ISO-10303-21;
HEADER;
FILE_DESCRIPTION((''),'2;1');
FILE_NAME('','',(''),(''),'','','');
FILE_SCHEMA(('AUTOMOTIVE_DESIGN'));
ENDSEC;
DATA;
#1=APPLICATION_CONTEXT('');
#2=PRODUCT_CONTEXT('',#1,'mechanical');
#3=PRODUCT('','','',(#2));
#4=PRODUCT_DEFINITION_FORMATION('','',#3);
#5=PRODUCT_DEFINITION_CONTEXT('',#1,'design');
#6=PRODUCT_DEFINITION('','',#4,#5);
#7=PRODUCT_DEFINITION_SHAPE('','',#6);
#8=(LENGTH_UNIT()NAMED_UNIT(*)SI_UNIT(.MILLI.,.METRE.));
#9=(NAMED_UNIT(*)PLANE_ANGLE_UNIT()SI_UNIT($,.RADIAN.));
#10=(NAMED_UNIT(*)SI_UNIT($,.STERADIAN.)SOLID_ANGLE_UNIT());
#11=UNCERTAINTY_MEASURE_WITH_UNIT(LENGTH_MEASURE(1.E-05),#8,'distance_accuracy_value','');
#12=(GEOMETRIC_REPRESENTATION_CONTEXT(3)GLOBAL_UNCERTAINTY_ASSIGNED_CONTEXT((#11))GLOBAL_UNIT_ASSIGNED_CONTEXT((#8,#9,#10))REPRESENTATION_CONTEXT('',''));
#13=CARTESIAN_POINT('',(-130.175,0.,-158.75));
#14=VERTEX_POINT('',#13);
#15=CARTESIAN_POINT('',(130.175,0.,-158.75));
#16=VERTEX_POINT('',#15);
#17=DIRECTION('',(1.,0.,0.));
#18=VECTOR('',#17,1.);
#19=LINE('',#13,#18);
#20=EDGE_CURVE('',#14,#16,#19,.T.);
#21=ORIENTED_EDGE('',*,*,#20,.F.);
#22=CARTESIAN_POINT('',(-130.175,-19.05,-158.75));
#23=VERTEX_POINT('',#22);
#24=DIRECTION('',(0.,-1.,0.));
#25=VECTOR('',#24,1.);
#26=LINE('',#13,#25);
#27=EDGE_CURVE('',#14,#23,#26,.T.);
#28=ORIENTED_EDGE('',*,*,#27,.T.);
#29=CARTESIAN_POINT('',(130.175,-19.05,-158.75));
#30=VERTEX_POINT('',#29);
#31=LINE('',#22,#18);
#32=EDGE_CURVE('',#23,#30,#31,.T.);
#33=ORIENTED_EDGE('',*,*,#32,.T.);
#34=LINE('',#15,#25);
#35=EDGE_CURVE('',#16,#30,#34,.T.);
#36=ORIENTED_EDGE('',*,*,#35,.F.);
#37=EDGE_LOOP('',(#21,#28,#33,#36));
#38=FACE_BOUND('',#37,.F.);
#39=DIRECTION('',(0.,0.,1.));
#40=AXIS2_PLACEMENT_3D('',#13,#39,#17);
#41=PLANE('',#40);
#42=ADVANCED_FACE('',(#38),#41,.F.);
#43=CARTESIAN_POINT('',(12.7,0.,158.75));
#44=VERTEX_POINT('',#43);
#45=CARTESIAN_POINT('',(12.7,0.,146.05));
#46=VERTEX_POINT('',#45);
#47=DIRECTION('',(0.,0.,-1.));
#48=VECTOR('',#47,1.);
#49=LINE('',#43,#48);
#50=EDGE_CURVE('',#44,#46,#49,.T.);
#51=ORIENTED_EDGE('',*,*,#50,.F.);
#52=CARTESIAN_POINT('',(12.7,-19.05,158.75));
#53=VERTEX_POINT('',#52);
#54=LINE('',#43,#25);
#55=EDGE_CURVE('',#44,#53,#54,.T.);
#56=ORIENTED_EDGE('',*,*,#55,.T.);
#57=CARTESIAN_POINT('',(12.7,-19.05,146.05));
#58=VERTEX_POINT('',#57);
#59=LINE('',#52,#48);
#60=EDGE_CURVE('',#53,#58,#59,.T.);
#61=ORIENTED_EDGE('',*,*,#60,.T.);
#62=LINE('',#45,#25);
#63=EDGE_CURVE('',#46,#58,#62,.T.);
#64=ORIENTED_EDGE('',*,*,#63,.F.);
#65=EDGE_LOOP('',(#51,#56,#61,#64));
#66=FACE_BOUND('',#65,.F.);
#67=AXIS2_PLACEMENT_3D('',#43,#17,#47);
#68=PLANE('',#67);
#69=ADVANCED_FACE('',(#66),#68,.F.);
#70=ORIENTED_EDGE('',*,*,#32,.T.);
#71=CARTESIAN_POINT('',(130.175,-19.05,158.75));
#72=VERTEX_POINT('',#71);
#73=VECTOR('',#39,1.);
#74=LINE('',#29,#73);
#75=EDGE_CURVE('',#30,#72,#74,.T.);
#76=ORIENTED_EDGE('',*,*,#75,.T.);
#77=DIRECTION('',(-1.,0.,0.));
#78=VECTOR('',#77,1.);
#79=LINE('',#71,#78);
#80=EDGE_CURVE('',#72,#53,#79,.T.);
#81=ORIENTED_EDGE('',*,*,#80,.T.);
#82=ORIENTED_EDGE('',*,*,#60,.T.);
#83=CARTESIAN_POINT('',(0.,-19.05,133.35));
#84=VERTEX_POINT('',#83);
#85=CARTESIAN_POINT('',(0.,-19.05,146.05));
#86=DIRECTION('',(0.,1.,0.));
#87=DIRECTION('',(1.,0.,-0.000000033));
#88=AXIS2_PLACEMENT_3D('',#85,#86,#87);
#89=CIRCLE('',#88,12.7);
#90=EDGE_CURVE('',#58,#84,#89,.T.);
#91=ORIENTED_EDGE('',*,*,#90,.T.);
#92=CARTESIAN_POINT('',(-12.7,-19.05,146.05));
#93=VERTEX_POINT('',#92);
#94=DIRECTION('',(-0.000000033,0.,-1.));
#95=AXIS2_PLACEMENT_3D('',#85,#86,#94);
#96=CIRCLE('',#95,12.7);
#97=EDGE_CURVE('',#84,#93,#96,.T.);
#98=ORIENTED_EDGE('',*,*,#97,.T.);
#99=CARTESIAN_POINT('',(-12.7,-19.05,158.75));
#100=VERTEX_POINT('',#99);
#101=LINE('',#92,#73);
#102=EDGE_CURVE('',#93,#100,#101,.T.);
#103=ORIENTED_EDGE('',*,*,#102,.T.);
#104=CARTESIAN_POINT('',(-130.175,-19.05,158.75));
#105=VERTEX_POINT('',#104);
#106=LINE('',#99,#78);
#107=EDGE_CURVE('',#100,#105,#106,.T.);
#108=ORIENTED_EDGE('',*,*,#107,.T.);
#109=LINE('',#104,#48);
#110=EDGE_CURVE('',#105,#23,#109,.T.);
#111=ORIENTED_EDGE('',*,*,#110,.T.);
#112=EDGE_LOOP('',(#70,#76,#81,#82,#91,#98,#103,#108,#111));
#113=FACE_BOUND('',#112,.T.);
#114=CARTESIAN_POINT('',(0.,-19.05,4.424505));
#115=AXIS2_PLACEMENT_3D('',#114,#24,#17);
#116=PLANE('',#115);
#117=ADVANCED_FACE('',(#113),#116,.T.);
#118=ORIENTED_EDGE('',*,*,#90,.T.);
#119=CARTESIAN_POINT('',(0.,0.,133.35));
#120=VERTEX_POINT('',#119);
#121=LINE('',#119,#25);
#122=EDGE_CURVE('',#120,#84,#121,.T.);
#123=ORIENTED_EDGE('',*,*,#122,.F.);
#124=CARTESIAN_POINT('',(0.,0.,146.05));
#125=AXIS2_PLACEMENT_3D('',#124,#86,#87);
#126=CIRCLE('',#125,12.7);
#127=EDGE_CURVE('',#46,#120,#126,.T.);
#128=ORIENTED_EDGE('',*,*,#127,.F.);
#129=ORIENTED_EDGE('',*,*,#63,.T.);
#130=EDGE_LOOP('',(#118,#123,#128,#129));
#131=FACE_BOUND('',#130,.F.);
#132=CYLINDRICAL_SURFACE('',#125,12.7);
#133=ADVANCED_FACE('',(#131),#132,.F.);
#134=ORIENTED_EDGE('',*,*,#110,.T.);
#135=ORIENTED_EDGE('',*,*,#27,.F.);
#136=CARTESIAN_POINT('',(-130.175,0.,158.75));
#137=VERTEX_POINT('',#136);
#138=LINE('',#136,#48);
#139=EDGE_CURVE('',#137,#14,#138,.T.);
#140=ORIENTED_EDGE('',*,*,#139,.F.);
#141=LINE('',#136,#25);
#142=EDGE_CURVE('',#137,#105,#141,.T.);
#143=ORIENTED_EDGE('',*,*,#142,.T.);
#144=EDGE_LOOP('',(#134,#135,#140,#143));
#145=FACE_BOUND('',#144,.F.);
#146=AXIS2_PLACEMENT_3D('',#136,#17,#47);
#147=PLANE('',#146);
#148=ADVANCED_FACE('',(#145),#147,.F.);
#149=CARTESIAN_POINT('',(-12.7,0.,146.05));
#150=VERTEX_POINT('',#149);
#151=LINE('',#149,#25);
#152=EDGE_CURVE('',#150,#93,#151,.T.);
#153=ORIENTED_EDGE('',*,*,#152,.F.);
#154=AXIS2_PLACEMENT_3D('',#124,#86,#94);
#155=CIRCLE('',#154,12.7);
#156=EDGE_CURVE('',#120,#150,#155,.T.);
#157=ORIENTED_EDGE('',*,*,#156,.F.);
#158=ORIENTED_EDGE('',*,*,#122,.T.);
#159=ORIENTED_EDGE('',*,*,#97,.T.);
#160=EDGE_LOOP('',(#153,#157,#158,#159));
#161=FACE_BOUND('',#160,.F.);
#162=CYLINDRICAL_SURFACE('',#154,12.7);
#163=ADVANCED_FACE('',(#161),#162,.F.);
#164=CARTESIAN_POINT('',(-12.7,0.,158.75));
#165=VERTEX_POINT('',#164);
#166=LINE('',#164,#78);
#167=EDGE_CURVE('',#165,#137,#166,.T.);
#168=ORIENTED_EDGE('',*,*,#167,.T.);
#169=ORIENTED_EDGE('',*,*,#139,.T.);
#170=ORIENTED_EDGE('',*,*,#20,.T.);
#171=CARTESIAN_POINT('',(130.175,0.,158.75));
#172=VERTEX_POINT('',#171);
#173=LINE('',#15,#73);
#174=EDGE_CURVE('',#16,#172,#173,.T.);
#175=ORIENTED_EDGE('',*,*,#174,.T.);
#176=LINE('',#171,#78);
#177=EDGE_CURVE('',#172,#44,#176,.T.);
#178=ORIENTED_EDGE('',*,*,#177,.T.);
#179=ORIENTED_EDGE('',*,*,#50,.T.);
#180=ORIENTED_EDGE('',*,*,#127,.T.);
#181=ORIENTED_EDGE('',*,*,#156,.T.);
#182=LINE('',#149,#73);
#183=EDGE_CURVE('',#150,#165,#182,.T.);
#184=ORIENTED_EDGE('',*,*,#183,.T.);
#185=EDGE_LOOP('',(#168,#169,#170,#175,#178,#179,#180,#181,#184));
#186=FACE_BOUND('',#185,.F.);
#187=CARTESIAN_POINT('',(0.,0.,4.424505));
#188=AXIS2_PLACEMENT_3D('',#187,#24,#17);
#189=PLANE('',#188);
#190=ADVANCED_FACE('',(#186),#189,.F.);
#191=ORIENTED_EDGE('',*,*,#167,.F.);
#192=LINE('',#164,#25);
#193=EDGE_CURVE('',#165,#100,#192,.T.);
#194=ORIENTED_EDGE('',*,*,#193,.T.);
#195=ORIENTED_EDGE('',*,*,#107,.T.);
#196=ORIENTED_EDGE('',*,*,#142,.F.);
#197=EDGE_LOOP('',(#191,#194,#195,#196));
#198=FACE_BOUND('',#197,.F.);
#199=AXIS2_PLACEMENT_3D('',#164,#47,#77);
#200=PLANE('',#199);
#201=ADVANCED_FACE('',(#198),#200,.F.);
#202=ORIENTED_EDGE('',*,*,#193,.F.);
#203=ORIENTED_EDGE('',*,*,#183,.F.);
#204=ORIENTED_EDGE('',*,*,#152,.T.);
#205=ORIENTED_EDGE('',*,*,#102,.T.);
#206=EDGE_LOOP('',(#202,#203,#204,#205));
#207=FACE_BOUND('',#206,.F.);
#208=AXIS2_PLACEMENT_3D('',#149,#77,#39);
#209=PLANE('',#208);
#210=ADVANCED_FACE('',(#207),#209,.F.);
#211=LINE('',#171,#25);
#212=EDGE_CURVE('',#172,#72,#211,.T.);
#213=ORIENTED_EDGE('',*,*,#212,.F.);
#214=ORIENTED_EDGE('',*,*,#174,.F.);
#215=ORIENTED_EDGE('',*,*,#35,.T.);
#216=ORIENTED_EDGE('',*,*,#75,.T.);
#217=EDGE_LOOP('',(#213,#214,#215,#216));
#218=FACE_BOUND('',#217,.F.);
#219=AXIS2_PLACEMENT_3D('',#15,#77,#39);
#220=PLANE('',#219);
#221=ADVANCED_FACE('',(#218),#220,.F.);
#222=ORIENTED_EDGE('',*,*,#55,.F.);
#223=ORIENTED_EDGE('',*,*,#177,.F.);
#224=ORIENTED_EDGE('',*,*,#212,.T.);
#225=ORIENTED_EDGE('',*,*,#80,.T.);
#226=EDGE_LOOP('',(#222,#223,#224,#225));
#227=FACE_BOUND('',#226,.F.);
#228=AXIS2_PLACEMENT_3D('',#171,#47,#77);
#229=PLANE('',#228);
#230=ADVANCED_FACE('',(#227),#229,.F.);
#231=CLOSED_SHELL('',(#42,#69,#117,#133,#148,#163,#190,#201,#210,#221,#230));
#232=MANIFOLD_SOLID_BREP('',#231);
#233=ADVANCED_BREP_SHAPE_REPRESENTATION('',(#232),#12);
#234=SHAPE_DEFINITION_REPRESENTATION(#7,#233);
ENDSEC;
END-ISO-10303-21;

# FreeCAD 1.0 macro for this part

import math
import FreeCAD as App
import Part
import Sketcher
from FreeCAD import Vector
Q = App.Units.Quantity

doc = App.newDocument("Part")
body = doc.addObject("PartDesign::Body", "Body")

sketch1 = body.newObject("Sketcher::SketchObject", "Sketch")
sketch1.AttachmentSupport = (doc.getObject("XZ_Plane"), [""])
sketch1.MapMode = "FlatFace"
sketch1.addGeometry([
    Part.LineSegment(Vector(-13, 159, 0), Vector(-130, 159, 0)),
    Part.LineSegment(Vector(-130, 159, 0), Vector(-130, -159, 0)),
    Part.LineSegment(Vector(-130, -159, 0), Vector(130, -159, 0)),
    Part.LineSegment(Vector(130, -159, 0), Vector(130, 159, 0)),
    Part.LineSegment(Vector(130, 159, 0), Vector(13, 159, 0)),
    Part.LineSegment(Vector(13, 159, 0), Vector(13, 146, 0)),
    Part.ArcOfCircle(Part.Circle(Vector(0, 146, 0), Vector(0, 0, 1), 13), math.radians(-90), math.radians(0)),
    Part.ArcOfCircle(Part.Circle(Vector(0, 146, 0), Vector(0, 0, 1), 13), math.radians(-180), math.radians(-90)),
    Part.LineSegment(Vector(-13, 146, 0), Vector(-13, 159, 0)),
], False)
sketch1.addConstraint([
    Sketcher.Constraint("Coincident", 0, 2, 1, 1),
    Sketcher.Constraint("Coincident", 1, 2, 2, 1),
    Sketcher.Constraint("Coincident", 2, 2, 3, 1),
    Sketcher.Constraint("Coincident", 3, 2, 4, 1),
    Sketcher.Constraint("Coincident", 4, 2, 5, 1),
    Sketcher.Constraint("Tangent", 5, 2, 6, 2),
    Sketcher.Constraint("Tangent", 6, 1, 7, 2),
    Sketcher.Constraint("Tangent", 7, 1, 8, 1),
    Sketcher.Constraint("Coincident", 8, 2, 0, 1),
    Sketcher.Constraint("Horizontal", 0),
    Sketcher.Constraint("Vertical", 1),
    Sketcher.Constraint("Horizontal", 2),
    Sketcher.Constraint("Vertical", 3),
    Sketcher.Constraint("Horizontal", 4),
    Sketcher.Constraint("Vertical", 5),
    Sketcher.Constraint("Vertical", 8),
    Sketcher.Constraint("Equal", 6, 7),
    Sketcher.Constraint("Symmetric", 0, 2, 2, 2, -1, 1),
    Sketcher.Constraint("Symmetric", 4, 2, 8, 2, -2),
    Sketcher.Constraint("PointOnObject", 6, 1, -2),
    Sketcher.Constraint("Radius", 6, Q("0.5 in")),
    Sketcher.Constraint("DistanceY", 1, 2, 1, 1, Q("12.5 in")),
    Sketcher.Constraint("DistanceY", 5, 2, 5, 1, Q("0.5 in")),
    Sketcher.Constraint("DistanceX", 2, 1, 2, 2, Q("10.25 in")),
])
pad1 = body.newObject("PartDesign::Pad", "Pad")
pad1.Profile = sketch1
pad1.Length = Q("0.75 in")

doc.recompute()
